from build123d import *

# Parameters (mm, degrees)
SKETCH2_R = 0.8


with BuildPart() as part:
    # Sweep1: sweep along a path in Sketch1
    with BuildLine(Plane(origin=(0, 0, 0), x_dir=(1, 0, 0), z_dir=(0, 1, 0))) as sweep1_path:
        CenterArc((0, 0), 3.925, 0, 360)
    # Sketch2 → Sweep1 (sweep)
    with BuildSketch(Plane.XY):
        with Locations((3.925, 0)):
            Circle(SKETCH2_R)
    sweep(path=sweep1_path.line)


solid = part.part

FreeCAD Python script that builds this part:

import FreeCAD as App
import Part
import Sketcher

doc = App.newDocument("Part")
body = doc.addObject("PartDesign::Body", "Body")

sketch1 = body.newObject("Sketcher::SketchObject", "Sketch")
sketch1.AttachmentSupport = (doc.getObject("XY_Plane"), [""])
sketch1.MapMode = "FlatFace"
sketch1.addGeometry(Part.Circle(App.Vector(3.9, 0, 0), App.Vector(0, 0, 1), 0.8), False)
sketch1.addConstraint(Sketcher.Constraint("PointOnObject", 0, 3, -1))
sketch1.addConstraint(Sketcher.Constraint("Diameter", 0, 1.6))
sketch1.addConstraint(Sketcher.Constraint("DistanceX", -1, 1, 0, 3, 3.925))

sketch2 = body.newObject("Sketcher::SketchObject", "Sketch001")
sketch2.AttachmentSupport = (doc.getObject("XZ_Plane"), [""])
sketch2.MapMode = "FlatFace"
sketch2.addGeometry(Part.Circle(App.Vector(0, 0, 0), App.Vector(0, 0, 1), 3.9), False)
sketch2.addConstraint(Sketcher.Constraint("Coincident", 0, 3, -1, 1))
sketch2.addConstraint(Sketcher.Constraint("Diameter", 0, 7.85))
doc.recompute()

additivepipe = body.newObject("PartDesign::AdditivePipe", "AdditivePipe")
additivepipe.Profile = sketch1
additivepipe.Spine = (sketch2, ["Edge1"])

doc.recompute()
